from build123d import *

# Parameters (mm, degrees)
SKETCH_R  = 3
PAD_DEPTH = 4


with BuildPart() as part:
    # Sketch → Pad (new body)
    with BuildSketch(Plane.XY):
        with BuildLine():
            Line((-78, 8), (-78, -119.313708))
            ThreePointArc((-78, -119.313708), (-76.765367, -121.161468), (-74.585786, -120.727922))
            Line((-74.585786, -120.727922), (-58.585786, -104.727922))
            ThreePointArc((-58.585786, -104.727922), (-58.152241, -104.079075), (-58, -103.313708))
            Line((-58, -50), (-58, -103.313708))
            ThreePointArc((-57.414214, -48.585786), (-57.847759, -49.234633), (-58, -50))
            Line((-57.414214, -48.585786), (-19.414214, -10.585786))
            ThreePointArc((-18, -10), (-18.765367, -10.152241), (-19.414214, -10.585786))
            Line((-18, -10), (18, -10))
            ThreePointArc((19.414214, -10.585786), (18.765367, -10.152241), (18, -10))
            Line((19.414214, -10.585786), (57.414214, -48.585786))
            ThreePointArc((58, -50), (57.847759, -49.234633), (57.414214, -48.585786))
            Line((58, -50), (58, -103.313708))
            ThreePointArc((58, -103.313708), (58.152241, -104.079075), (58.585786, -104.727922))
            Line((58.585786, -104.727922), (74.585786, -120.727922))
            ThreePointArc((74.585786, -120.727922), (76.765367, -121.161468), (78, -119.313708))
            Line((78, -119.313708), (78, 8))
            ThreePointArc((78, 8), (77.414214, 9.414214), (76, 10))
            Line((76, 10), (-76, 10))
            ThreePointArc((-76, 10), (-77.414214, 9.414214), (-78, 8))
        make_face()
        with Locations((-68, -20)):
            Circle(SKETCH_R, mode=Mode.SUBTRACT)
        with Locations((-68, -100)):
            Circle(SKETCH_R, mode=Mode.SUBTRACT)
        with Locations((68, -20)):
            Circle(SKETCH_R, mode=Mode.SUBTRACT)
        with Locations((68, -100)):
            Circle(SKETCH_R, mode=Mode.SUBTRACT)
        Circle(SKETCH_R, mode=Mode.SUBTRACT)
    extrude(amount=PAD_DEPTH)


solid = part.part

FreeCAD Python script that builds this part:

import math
import FreeCAD as App
import Part
import Sketcher

doc = App.newDocument("Part")
body = doc.addObject("PartDesign::Body", "Body")

sketch1 = doc.addObject("Sketcher::SketchObject", "Sketch")
body.addObject(sketch1)
sketch1.AttachmentSupport = (doc.XY_Plane, [""])
sketch1.MapMode = "FlatFace"
sketch1.addGeometry([
    Part.LineSegment(App.Vector(-78, 8, 0), App.Vector(-78, -119.3, 0)),
    Part.ArcOfCircle(Part.Circle(App.Vector(-76, -119.3, 0), App.Vector(0, 0, 1), 2), math.radians(180), math.radians(315)),
    Part.LineSegment(App.Vector(-74.6, -120.7, 0), App.Vector(-58.6, -104.7, 0)),
    Part.ArcOfCircle(Part.Circle(App.Vector(-60, -103.3, 0), App.Vector(0, 0, 1), 2), math.radians(-45), math.radians(0)),
    Part.LineSegment(App.Vector(-58, -103.3, 0), App.Vector(-58, -50, 0)),
    Part.ArcOfCircle(Part.Circle(App.Vector(-56, -50, 0), App.Vector(0, 0, 1), 2), math.radians(135), math.radians(180)),
    Part.LineSegment(App.Vector(-57.4, -48.6, 0), App.Vector(-19.4, -10.6, 0)),
    Part.ArcOfCircle(Part.Circle(App.Vector(-18, -12, 0), App.Vector(0, 0, 1), 2), math.radians(90), math.radians(135)),
    Part.LineSegment(App.Vector(-18, -10, 0), App.Vector(18, -10, 0)),
    Part.ArcOfCircle(Part.Circle(App.Vector(18, -12, 0), App.Vector(0, 0, 1), 2), math.radians(45), math.radians(90)),
    Part.LineSegment(App.Vector(19.4, -10.6, 0), App.Vector(57.4, -48.6, 0)),
    Part.ArcOfCircle(Part.Circle(App.Vector(56, -50, 0), App.Vector(0, 0, 1), 2), math.radians(0), math.radians(45)),
    Part.LineSegment(App.Vector(58, -50, 0), App.Vector(58, -103.3, 0)),
    Part.ArcOfCircle(Part.Circle(App.Vector(60, -103.3, 0), App.Vector(0, 0, 1), 2), math.radians(-180), math.radians(-135)),
    Part.LineSegment(App.Vector(58.6, -104.7, 0), App.Vector(74.6, -120.7, 0)),
    Part.ArcOfCircle(Part.Circle(App.Vector(76, -119.3, 0), App.Vector(0, 0, 1), 2), math.radians(-135), math.radians(0)),
    Part.LineSegment(App.Vector(78, -119.3, 0), App.Vector(78, 8, 0)),
    Part.ArcOfCircle(Part.Circle(App.Vector(76, 8, 0), App.Vector(0, 0, 1), 2), math.radians(0), math.radians(90)),
    Part.LineSegment(App.Vector(76, 10, 0), App.Vector(-76, 10, 0)),
    Part.ArcOfCircle(Part.Circle(App.Vector(-76, 8, 0), App.Vector(0, 0, 1), 2), math.radians(90), math.radians(180)),
    Part.Circle(App.Vector(-68, -100, 0), App.Vector(0, 0, 1), 3),
    Part.Circle(App.Vector(68, -100, 0), App.Vector(0, 0, 1), 3),
    Part.Circle(App.Vector(-68, -20, 0), App.Vector(0, 0, 1), 3),
    Part.Circle(App.Vector(0, 0, 0), App.Vector(0, 0, 1), 3),
    Part.Circle(App.Vector(68, -20, 0), App.Vector(0, 0, 1), 3),
], False)
sketch1.addConstraint([
    Sketcher.Constraint("Tangent", 0, 2, 1, 1),
    Sketcher.Constraint("Tangent", 1, 2, 2, 1),
    Sketcher.Constraint("Tangent", 2, 2, 3, 1),
    Sketcher.Constraint("Tangent", 3, 2, 4, 1),
    Sketcher.Constraint("Tangent", 4, 2, 5, 2),
    Sketcher.Constraint("Tangent", 5, 1, 6, 1),
    Sketcher.Constraint("Tangent", 6, 2, 7, 2),
    Sketcher.Constraint("Tangent", 7, 1, 8, 1),
    Sketcher.Constraint("Tangent", 8, 2, 9, 2),
    Sketcher.Constraint("Tangent", 9, 1, 10, 1),
    Sketcher.Constraint("Tangent", 10, 2, 11, 2),
    Sketcher.Constraint("Tangent", 11, 1, 12, 1),
    Sketcher.Constraint("Tangent", 12, 2, 13, 1),
    Sketcher.Constraint("Tangent", 13, 2, 14, 1),
    Sketcher.Constraint("Tangent", 14, 2, 15, 1),
    Sketcher.Constraint("Tangent", 15, 2, 16, 1),
    Sketcher.Constraint("Tangent", 16, 2, 17, 1),
    Sketcher.Constraint("Tangent", 17, 2, 18, 1),
    Sketcher.Constraint("Tangent", 18, 2, 19, 1),
    Sketcher.Constraint("Tangent", 19, 2, 0, 1),
    Sketcher.Constraint("Vertical", 0),
    Sketcher.Constraint("Vertical", 4),
    Sketcher.Constraint("Horizontal", 8),
    Sketcher.Constraint("Vertical", 12),
    Sketcher.Constraint("Vertical", 16),
    Sketcher.Constraint("Horizontal", 18),
    Sketcher.Constraint("Coincident", 23, 3, -1, 1),
    Sketcher.Constraint("Equal", 3, 5),
    Sketcher.Constraint("Equal", 5, 7),
    Sketcher.Constraint("Equal", 7, 9),
    Sketcher.Constraint("Equal", 9, 11),
    Sketcher.Constraint("Equal", 11, 13),
    Sketcher.Constraint("Equal", 1, 15),
    Sketcher.Constraint("Equal", 15, 17),
    Sketcher.Constraint("Equal", 17, 19),
    Sketcher.Constraint("Equal", 20, 21),
    Sketcher.Constraint("Equal", 21, 22),
    Sketcher.Constraint("Equal", 22, 23),
    Sketcher.Constraint("Equal", 23, 24),
    Sketcher.Constraint("Symmetric", 5, 3, 11, 3, -2),
    Sketcher.Constraint("Symmetric", 1, 3, 15, 3, -2),
    Sketcher.Constraint("Symmetric", 20, 3, 21, 3, -2),
    Sketcher.Constraint("Symmetric", 22, 3, 24, 3, -2),
    Sketcher.Constraint("Parallel", 2, 6),
    Sketcher.Constraint("Perpendicular", 6, 10),
    Sketcher.Constraint("Parallel", 10, 14),
    Sketcher.Constraint("Horizontal", 3, 3, 13, 3),
    Sketcher.Constraint("Vertical", 20, 3, 22, 3),
    Sketcher.Constraint("Diameter", 20, 6.0),
    Sketcher.Constraint("Radius", 1, 2.0),
    Sketcher.Constraint("DistanceX", 8, 1, 8, 2, 36.0),
    Sketcher.Constraint("DistanceX", 18, 2, 18, 1, 152.0),
    Sketcher.Constraint("DistanceY", 5, 3, -1, 1, 50.000001),
    Sketcher.Constraint("DistanceY", -1, 1, 17, 3, 8.000001),
    Sketcher.Constraint("DistanceX", 20, 3, -1, 1, 68.0),
    Sketcher.Constraint("DistanceY", 20, 3, -1, 1, 100.0),
    Sketcher.Constraint("DistanceY", 22, 3, -1, 1, 20.0),
    Sketcher.Constraint("DistanceX", 3, 2, -1, 1, 58.0),
    Sketcher.Constraint("DistanceY", 1, 3, 3, 3, 16.000002),
    Sketcher.Constraint("DistanceY", 0, 2, 0, 1, 127.313708),
])
pad1 = doc.addObject("PartDesign::Pad", "Pad")
body.addObject(pad1)
pad1.Profile = sketch1
pad1.Length = 4

doc.recompute()
